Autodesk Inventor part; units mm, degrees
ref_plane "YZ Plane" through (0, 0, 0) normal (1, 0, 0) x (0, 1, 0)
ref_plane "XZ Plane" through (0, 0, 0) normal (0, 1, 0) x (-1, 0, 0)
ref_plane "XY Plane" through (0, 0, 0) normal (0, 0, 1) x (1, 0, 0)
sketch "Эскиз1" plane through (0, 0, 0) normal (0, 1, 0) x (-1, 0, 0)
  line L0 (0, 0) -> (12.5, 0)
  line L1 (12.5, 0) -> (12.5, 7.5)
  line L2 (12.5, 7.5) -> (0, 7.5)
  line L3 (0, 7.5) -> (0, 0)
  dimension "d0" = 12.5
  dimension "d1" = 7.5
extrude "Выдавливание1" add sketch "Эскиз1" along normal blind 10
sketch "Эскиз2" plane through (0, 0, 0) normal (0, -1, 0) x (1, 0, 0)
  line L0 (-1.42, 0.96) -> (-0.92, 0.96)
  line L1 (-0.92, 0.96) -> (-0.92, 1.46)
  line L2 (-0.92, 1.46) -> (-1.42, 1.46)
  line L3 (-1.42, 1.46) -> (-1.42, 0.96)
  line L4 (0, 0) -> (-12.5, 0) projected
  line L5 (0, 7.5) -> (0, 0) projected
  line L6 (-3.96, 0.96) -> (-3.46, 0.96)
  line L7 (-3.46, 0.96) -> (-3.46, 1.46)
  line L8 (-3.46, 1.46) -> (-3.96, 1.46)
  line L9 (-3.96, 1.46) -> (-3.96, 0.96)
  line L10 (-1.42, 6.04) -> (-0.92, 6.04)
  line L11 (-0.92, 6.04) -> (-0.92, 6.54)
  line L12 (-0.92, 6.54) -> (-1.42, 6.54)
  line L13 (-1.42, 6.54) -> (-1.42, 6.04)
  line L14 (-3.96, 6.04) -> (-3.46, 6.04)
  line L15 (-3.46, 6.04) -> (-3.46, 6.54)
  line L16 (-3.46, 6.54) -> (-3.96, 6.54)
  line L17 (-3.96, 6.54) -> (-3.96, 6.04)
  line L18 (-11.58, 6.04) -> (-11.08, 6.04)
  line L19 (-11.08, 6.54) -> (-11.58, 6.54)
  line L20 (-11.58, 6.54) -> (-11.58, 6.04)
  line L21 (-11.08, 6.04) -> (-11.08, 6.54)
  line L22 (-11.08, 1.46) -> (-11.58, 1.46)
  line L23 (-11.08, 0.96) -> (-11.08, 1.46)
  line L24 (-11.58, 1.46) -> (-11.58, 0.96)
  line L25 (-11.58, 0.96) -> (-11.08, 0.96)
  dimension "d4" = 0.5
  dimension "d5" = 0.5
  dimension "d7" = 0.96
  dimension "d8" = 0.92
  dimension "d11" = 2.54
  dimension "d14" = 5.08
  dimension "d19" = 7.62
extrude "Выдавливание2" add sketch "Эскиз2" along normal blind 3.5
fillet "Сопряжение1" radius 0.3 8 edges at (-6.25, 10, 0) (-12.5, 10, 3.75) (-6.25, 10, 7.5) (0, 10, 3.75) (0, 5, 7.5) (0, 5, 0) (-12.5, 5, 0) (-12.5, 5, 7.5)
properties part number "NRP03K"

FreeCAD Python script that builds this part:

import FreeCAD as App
import Part
import Sketcher
from FreeCAD import Vector
Q = App.Units.Quantity


def edges_at(feature, points):
    """Names of the edges that pass closest to the given points."""
    edges = feature.Shape.Edges
    near = lambda p: min(range(len(edges)), key=lambda i: edges[i].distToShape(Part.Vertex(*p))[0])
    return sorted({f"Edge{near(p) + 1}" for p in points})


def add_polygon(sketch, points):
    """Adds a closed chain of lines whose ends are joined by coincident constraints."""
    first, n = sketch.GeometryCount, len(points)
    for a, b in zip(points, points[1:] + points[:1]):
        sketch.addGeometry(Part.LineSegment(App.Vector(*a, 0), App.Vector(*b, 0)), False)
    for i in range(n):
        sketch.addConstraint(Sketcher.Constraint("Coincident", first + i, 2, first + (i + 1) % n, 1))

doc = App.newDocument("Part")
body = doc.addObject("PartDesign::Body", "Body")

sketch1 = body.newObject("Sketcher::SketchObject", "Sketch")
sketch1.AttachmentSupport = (doc.getObject("XZ_Plane"), [""])
sketch1.MapMode = "FlatFace"
add_polygon(sketch1, [(0, 8), (0, 0), (-12, 0), (-12, 8)])
sketch1.addConstraint(Sketcher.Constraint("Vertical", 0))
sketch1.addConstraint(Sketcher.Constraint("Horizontal", 1))
sketch1.addConstraint(Sketcher.Constraint("Vertical", 2))
sketch1.addConstraint(Sketcher.Constraint("Horizontal", 3))
sketch1.addConstraint(Sketcher.Constraint("Coincident", 0, 2, -1, 1))
sketch1.addConstraint(Sketcher.Constraint("DistanceX", 1, 2, 1, 1, Q("12.5 mm")))
sketch1.addConstraint(Sketcher.Constraint("DistanceY", 0, 2, 0, 1, Q("7.5 mm")))
pad1 = body.newObject("PartDesign::Pad", "Pad")
pad1.Profile = sketch1
pad1.Length = 10
pad1.Reversed = True

sketch2 = body.newObject("Sketcher::SketchObject", "Sketch001")
sketch2.AttachmentSupport = (doc.getObject("XZ_Plane"), [""])
sketch2.MapMode = "FlatFace"
add_polygon(sketch2, [(-1.42, 1.46), (-1.42, 0.96), (-0.92, 0.96), (-0.92, 1.46)])
add_polygon(sketch2, [(-3.96, 1.46), (-3.96, 0.96), (-3.46, 0.96), (-3.46, 1.46)])
add_polygon(sketch2, [(-1.42, 6.54), (-1.42, 6.04), (-0.92, 6.04), (-0.92, 6.54)])
add_polygon(sketch2, [(-3.96, 6.54), (-3.96, 6.04), (-3.46, 6.04), (-3.46, 6.54)])
add_polygon(sketch2, [(-11.58, 6.54), (-11.58, 6.04), (-11.08, 6.04), (-11.08, 6.54)])
add_polygon(sketch2, [(-11.08, 0.96), (-11.08, 1.46), (-11.58, 1.46), (-11.58, 0.96)])
sketch2.addConstraint(Sketcher.Constraint("Vertical", 0))
sketch2.addConstraint(Sketcher.Constraint("Horizontal", 1))
sketch2.addConstraint(Sketcher.Constraint("Vertical", 2))
sketch2.addConstraint(Sketcher.Constraint("Horizontal", 3))
sketch2.addConstraint(Sketcher.Constraint("Vertical", 4))
sketch2.addConstraint(Sketcher.Constraint("Horizontal", 5))
sketch2.addConstraint(Sketcher.Constraint("Vertical", 6))
sketch2.addConstraint(Sketcher.Constraint("Horizontal", 7))
sketch2.addConstraint(Sketcher.Constraint("Vertical", 8))
sketch2.addConstraint(Sketcher.Constraint("Horizontal", 9))
sketch2.addConstraint(Sketcher.Constraint("Vertical", 10))
sketch2.addConstraint(Sketcher.Constraint("Horizontal", 11))
sketch2.addConstraint(Sketcher.Constraint("Vertical", 12))
sketch2.addConstraint(Sketcher.Constraint("Horizontal", 13))
sketch2.addConstraint(Sketcher.Constraint("Vertical", 14))
sketch2.addConstraint(Sketcher.Constraint("Horizontal", 15))
sketch2.addConstraint(Sketcher.Constraint("Vertical", 16))
sketch2.addConstraint(Sketcher.Constraint("Horizontal", 17))
sketch2.addConstraint(Sketcher.Constraint("Vertical", 18))
sketch2.addConstraint(Sketcher.Constraint("Horizontal", 19))
sketch2.addConstraint(Sketcher.Constraint("Vertical", 20))
sketch2.addConstraint(Sketcher.Constraint("Horizontal", 21))
sketch2.addConstraint(Sketcher.Constraint("Vertical", 22))
sketch2.addConstraint(Sketcher.Constraint("Horizontal", 23))
sketch2.addConstraint(Sketcher.Constraint("Horizontal", 1, 2, 4, 2))
sketch2.addConstraint(Sketcher.Constraint("Horizontal", 3, 2, 6, 2))
sketch2.addConstraint(Sketcher.Constraint("Horizontal", 9, 2, 12, 2))
sketch2.addConstraint(Sketcher.Constraint("Horizontal", 11, 2, 14, 2))
sketch2.addConstraint(Sketcher.Constraint("Horizontal", 13, 2, 16, 2))
sketch2.addConstraint(Sketcher.Constraint("Horizontal", 15, 2, 18, 2))
sketch2.addConstraint(Sketcher.Constraint("Horizontal", 7, 2, 20, 2))
sketch2.addConstraint(Sketcher.Constraint("Horizontal", 5, 2, 22, 2))
sketch2.addConstraint(Sketcher.Constraint("Vertical", 3, 2, 8, 2))
sketch2.addConstraint(Sketcher.Constraint("Vertical", 2, 2, 9, 2))
sketch2.addConstraint(Sketcher.Constraint("Vertical", 7, 2, 12, 2))
sketch2.addConstraint(Sketcher.Constraint("Vertical", 6, 2, 13, 2))
sketch2.addConstraint(Sketcher.Constraint("Vertical", 18, 2, 20, 2))
sketch2.addConstraint(Sketcher.Constraint("Vertical", 19, 2, 21, 2))
sketch2.addConstraint(Sketcher.Constraint("Equal", 3, 5))
sketch2.addConstraint(Sketcher.Constraint("Equal", 15, 17))
sketch2.addConstraint(Sketcher.Constraint("Equal", 23, 0))
sketch2.addConstraint(Sketcher.Constraint("Equal", 6, 8))
sketch2.addConstraint(Sketcher.Constraint("DistanceX", 1, 1, 1, 2, Q("0.5 mm")))
sketch2.addConstraint(Sketcher.Constraint("DistanceY", -1, 1, 0, 2, Q("0.96 mm")))
sketch2.addConstraint(Sketcher.Constraint("DistanceX", 1, 2, -1, 1, Q("0.92 mm")))
sketch2.addConstraint(Sketcher.Constraint("DistanceX", 4, 2, 0, 2, Q("2.54 mm")))
sketch2.addConstraint(Sketcher.Constraint("DistanceY", 0, 2, 8, 2, Q("5.08 mm")))
sketch2.addConstraint(Sketcher.Constraint("DistanceX", 16, 2, 12, 2, Q("7.62 mm")))
pad2 = body.newObject("PartDesign::Pad", "Pad001")
pad2.Profile = sketch2
pad2.Length = 3.5
doc.recompute()

fillet = body.newObject("PartDesign::Fillet", "Fillet")
fillet.Base = (pad2, edges_at(pad2, [
    (-6.25, 10, 0),
    (-12.5, 10, 3.75),
    (-6.25, 10, 7.5),
    (0, 10, 3.75),
    (0, 5, 7.5),
    (0, 5, 0),
    (-12.5, 5, 0),
    (-12.5, 5, 7.5),
]))
fillet.Radius = 0.3

doc.recompute()
